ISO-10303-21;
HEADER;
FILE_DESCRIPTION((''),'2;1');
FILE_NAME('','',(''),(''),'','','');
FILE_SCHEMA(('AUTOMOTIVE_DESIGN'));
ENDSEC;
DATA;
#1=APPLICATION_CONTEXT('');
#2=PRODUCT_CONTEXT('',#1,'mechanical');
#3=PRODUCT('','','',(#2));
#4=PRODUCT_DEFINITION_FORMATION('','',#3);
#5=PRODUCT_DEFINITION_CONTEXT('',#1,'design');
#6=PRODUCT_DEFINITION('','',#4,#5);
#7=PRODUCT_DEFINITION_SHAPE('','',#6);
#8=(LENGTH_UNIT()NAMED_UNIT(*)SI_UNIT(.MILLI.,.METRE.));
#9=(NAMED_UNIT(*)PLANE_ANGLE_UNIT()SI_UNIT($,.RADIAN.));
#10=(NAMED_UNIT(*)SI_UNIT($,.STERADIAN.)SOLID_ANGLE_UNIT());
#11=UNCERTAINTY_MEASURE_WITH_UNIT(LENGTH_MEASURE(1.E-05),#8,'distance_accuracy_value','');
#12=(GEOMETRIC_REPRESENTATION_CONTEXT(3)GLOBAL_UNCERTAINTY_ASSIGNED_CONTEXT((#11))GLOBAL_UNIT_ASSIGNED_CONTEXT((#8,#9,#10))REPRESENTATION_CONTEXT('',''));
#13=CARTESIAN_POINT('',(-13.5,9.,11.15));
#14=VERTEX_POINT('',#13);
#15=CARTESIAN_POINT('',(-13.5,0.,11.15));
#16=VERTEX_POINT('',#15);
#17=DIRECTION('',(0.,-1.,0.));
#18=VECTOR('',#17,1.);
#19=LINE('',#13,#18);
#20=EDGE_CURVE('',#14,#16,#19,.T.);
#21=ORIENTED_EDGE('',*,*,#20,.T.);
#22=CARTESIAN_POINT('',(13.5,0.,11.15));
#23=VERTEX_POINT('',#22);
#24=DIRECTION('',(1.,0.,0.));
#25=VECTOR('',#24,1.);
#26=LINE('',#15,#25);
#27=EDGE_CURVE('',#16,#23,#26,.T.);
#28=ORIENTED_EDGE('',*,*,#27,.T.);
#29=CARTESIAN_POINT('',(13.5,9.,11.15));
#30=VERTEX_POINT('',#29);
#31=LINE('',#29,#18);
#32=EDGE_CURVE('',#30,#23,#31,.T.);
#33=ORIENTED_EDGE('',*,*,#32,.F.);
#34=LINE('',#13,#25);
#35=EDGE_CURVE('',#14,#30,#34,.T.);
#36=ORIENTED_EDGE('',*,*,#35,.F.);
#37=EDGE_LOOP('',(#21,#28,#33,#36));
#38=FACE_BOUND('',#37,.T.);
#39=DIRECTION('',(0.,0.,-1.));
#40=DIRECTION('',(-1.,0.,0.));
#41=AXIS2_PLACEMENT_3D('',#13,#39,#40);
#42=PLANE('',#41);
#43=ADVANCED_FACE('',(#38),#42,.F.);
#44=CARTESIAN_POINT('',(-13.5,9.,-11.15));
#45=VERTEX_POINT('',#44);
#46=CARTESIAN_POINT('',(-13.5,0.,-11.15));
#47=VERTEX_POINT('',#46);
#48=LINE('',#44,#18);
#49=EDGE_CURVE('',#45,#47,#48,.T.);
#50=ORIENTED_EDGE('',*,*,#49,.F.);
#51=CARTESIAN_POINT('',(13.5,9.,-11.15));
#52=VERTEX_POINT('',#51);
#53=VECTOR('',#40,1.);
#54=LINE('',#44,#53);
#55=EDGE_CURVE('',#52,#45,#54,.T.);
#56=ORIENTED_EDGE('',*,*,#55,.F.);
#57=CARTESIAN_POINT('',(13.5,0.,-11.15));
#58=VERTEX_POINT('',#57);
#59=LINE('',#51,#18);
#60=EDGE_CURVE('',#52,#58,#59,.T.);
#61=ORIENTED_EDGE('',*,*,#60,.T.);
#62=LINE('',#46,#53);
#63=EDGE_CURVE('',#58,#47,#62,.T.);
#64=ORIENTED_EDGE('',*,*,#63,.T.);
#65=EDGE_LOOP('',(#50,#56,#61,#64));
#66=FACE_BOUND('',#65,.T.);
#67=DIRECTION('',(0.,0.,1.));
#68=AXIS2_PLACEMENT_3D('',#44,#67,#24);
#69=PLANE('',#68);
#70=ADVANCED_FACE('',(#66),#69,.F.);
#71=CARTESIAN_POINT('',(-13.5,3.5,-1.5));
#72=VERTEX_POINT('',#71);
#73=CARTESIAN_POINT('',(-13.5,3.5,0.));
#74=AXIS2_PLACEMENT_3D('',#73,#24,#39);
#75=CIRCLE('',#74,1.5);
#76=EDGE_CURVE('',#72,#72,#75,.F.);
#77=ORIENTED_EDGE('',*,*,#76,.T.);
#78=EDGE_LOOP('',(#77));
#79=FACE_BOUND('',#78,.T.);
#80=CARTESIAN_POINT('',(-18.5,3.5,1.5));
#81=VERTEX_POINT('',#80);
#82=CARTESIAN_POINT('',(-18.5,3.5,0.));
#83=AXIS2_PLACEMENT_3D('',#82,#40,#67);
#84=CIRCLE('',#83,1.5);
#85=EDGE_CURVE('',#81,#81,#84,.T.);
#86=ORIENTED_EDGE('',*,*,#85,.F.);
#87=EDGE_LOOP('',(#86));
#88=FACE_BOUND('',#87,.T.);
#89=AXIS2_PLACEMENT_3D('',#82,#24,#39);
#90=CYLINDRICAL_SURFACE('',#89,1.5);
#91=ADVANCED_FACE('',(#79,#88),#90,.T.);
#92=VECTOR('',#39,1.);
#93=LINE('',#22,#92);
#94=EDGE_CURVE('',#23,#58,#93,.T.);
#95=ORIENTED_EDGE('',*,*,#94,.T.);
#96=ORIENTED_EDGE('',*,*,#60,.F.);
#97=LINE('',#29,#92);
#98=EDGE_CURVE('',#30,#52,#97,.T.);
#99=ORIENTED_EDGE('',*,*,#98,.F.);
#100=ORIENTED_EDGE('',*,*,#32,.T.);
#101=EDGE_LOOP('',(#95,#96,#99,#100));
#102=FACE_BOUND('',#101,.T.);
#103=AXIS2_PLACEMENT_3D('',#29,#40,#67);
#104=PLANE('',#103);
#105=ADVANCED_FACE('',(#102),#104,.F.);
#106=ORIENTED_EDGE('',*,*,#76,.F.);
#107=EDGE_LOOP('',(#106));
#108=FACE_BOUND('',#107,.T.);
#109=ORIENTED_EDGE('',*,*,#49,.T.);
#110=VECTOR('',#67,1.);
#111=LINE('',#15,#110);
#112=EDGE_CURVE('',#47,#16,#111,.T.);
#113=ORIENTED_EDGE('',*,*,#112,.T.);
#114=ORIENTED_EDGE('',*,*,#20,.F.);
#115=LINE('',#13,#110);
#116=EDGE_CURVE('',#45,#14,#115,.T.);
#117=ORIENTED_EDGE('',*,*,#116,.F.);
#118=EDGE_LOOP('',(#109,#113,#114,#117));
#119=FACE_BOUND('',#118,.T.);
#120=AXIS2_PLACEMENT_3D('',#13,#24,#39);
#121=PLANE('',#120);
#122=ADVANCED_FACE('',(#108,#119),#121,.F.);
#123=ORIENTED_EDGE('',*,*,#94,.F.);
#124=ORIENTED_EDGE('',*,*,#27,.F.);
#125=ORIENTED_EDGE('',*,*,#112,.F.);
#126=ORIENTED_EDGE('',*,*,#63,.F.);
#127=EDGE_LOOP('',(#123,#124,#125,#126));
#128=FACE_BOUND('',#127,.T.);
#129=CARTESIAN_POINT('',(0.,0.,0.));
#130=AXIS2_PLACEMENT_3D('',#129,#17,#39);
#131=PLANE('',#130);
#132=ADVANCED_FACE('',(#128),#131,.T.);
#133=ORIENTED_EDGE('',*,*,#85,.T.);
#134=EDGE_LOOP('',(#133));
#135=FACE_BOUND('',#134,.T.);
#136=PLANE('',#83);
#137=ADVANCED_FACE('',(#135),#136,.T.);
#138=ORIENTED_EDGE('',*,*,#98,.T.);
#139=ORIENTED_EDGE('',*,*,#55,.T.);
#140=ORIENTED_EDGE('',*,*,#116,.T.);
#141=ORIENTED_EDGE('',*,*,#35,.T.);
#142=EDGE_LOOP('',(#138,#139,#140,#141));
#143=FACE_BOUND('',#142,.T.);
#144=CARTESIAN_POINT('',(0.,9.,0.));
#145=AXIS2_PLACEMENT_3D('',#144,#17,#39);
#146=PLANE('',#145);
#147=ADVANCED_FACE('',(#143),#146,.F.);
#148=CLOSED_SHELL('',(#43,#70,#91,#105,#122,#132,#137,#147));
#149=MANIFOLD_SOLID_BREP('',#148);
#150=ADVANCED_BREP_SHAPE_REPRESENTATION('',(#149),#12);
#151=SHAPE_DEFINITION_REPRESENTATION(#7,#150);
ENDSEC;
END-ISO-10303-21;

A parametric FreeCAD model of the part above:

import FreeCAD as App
import Part
import Sketcher
Q = App.Units.Quantity

doc = App.newDocument("Part")
body = doc.addObject("PartDesign::Body", "Body")

# Sketch on XZ plane
sketch1 = body.newObject("Sketcher::SketchObject", "Sketch")
sketch1.AttachmentSupport = (doc.getObject("XZ_Plane"), [""])
sketch1.MapMode = "FlatFace"
sketch1.addGeometry([
    Part.LineSegment(App.Vector(-14, -11, 0), App.Vector(-14, 11, 0)),
    Part.LineSegment(App.Vector(-14, 11, 0), App.Vector(14, 11, 0)),
    Part.LineSegment(App.Vector(14, 11, 0), App.Vector(14, -11, 0)),
    Part.LineSegment(App.Vector(14, -11, 0), App.Vector(-14, -11, 0)),
], False)
sketch1.addConstraint([
    Sketcher.Constraint("Coincident", 0, 2, 1, 1),
    Sketcher.Constraint("Coincident", 1, 2, 2, 1),
    Sketcher.Constraint("Coincident", 2, 2, 3, 1),
    Sketcher.Constraint("Coincident", 3, 2, 0, 1),
    Sketcher.Constraint("Vertical", 0),
    Sketcher.Constraint("Horizontal", 1),
    Sketcher.Constraint("Vertical", 2),
    Sketcher.Constraint("Horizontal", 3),
    Sketcher.Constraint("Symmetric", 0, 2, 2, 2, -1, 1),
    Sketcher.Constraint("DistanceX", 1, 1, 1, 2, Q("27 mm")),
    Sketcher.Constraint("DistanceY", 0, 1, 0, 2, Q("22.3 mm")),
])
pad1 = body.newObject("PartDesign::Pad", "Pad")
pad1.Profile = sketch1
pad1.Length = 9
pad1.Reversed = True

# Sketch on YZ plane
sketch2 = body.newObject("Sketcher::SketchObject", "Sketch001")
sketch2.AttachmentSupport = (doc.getObject("YZ_Plane"), [""])
sketch2.MapMode = "FlatFace"
sketch2.AttachmentOffset = App.Placement(App.Vector(0, 0, -13.5), App.Rotation())
sketch2.addGeometry(Part.Circle(App.Vector(3.5, 0, 0), App.Vector(0, 0, 1), 1.5), False)
sketch2.addConstraint([
    Sketcher.Constraint("PointOnObject", 0, 3, -1),
    Sketcher.Constraint("Diameter", 0, Q("3 mm")),
    Sketcher.Constraint("DistanceX", -1, 1, 0, 3, Q("3.5 mm")),
])
pad2 = body.newObject("PartDesign::Pad", "Pad001")
pad2.Profile = sketch2
pad2.Length = 5
pad2.Reversed = True

doc.recompute()
